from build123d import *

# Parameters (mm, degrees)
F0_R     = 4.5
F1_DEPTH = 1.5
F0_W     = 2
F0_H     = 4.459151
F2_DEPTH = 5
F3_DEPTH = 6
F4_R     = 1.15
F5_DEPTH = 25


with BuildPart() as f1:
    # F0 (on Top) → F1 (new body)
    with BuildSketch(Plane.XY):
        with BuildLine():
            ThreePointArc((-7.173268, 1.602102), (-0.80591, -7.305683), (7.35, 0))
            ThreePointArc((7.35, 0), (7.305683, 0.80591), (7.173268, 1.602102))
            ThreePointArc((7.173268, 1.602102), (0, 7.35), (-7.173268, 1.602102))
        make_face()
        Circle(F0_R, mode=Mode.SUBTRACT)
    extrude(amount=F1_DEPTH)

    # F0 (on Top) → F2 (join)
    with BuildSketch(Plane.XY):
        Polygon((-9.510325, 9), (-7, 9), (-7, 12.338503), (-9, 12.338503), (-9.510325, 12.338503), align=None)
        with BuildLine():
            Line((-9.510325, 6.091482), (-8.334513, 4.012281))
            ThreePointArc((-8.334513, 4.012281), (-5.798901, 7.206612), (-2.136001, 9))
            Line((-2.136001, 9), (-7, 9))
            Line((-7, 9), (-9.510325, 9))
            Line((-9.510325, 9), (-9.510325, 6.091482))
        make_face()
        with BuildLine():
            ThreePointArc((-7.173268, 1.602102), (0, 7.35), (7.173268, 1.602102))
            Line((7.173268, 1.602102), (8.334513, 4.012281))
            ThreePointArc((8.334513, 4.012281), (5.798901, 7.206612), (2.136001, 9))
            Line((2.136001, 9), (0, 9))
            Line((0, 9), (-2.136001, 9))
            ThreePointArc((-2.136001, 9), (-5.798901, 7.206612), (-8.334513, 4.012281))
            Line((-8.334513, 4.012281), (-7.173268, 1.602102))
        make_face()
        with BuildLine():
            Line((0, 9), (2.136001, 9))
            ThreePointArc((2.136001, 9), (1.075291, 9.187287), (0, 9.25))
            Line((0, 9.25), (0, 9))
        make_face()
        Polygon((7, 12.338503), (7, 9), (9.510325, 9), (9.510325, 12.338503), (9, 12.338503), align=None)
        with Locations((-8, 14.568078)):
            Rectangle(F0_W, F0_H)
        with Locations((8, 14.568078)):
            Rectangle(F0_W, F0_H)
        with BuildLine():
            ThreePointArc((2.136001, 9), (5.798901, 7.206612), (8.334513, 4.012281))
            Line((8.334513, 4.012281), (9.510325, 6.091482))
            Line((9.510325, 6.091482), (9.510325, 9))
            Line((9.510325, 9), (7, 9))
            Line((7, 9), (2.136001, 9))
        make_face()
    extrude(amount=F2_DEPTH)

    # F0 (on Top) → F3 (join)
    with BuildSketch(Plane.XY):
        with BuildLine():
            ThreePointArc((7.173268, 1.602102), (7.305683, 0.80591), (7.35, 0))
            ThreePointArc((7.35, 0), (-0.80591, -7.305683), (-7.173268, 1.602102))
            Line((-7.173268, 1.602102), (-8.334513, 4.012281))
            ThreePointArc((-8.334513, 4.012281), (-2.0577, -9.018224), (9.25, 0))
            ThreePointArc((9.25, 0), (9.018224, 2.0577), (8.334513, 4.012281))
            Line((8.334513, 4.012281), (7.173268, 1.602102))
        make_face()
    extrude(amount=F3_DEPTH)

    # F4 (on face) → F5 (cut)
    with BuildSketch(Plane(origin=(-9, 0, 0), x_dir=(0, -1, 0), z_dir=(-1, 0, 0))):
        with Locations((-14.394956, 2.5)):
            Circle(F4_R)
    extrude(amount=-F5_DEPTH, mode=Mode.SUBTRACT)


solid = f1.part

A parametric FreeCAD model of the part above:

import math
import FreeCAD as App
import Part
import Sketcher

doc = App.newDocument("Part")
body = doc.addObject("PartDesign::Body", "Body")

# Sketch on XY plane
sketch1 = doc.addObject("Sketcher::SketchObject", "Sketch")
body.addObject(sketch1)
sketch1.AttachmentSupport = (doc.XY_Plane, [""])
sketch1.MapMode = "FlatFace"
sketch1.addGeometry(Part.ArcOfCircle(Part.Circle(App.Vector(0, 0, 0), App.Vector(0, 0, 1), 7.35), math.radians(167.409995), math.radians(359.999996)), False)
sketch1.addGeometry(Part.ArcOfCircle(Part.Circle(App.Vector(-0.000082, -0.000008, 0), App.Vector(0, 0, 1), 7.350082), math.radians(0.000059), math.radians(12.589927)), False)
sketch1.addGeometry(Part.ArcOfCircle(Part.Circle(App.Vector(0, 0, 0), App.Vector(0, 0, 1), 7.35), math.radians(12.590011), math.radians(167.409989)), False)
sketch1.addGeometry(Part.Circle(App.Vector(0, 0, 0), App.Vector(0, 0, 1), 4.5), False)
sketch1.addConstraint(Sketcher.Constraint("Coincident", 0, 2, 1, 1))
sketch1.addConstraint(Sketcher.Constraint("Coincident", 1, 2, 2, 1))
sketch1.addConstraint(Sketcher.Constraint("Coincident", 2, 2, 0, 1))
sketch1.addConstraint(Sketcher.Constraint("Coincident", 0, 3, -1, 1))
sketch1.addConstraint(Sketcher.Constraint("Coincident", 2, 3, -1, 1))
sketch1.addConstraint(Sketcher.Constraint("Coincident", 3, 3, -1, 1))
sketch1.addConstraint(Sketcher.Constraint("PointOnObject", 0, 2, -1))
sketch1.addConstraint(Sketcher.Constraint("Diameter", 3, 9.0))
sketch1.addConstraint(Sketcher.Constraint("Radius", 0, 7.35))
sketch1.addConstraint(Sketcher.Constraint("Radius", 1, 7.350082))
sketch1.addConstraint(Sketcher.Constraint("DistanceY", -1, 1, 1, 2, 1.602102))
sketch1.addConstraint(Sketcher.Constraint("DistanceY", 0, 3, 2, 2, 1.602102))
pad1 = doc.addObject("PartDesign::Pad", "Pad")
body.addObject(pad1)
pad1.Profile = sketch1
pad1.Length = 1.5

# Sketch on XY plane
sketch2 = doc.addObject("Sketcher::SketchObject", "Sketch001")
body.addObject(sketch2)
sketch2.AttachmentSupport = (doc.XY_Plane, [""])
sketch2.MapMode = "FlatFace"
sketch2.addGeometry(Part.LineSegment(App.Vector(0, 9, 0), App.Vector(-7, 9, 0)), False)
sketch2.addGeometry(Part.LineSegment(App.Vector(-7, 9, 0), App.Vector(-7, 16.797653, 0)), False)
sketch2.addGeometry(Part.LineSegment(App.Vector(-7, 16.797653, 0), App.Vector(-9, 16.797653, 0)), False)
sketch2.addGeometry(Part.LineSegment(App.Vector(-9, 16.797653, 0), App.Vector(-9, 12.338503, 0)), False)
sketch2.addGeometry(Part.LineSegment(App.Vector(-9, 12.338503, 0), App.Vector(-9.510325, 12.338503, 0)), False)
sketch2.addGeometry(Part.LineSegment(App.Vector(-9.510325, 12.338503, 0), App.Vector(-9.510325, 6.091482, 0)), False)
sketch2.addGeometry(Part.LineSegment(App.Vector(-9.510325, 6.091482, 0), App.Vector(-8.334513, 4.012281, 0)), False)
sketch2.addGeometry(Part.LineSegment(App.Vector(-8.334513, 4.012281, 0), App.Vector(-7.173268, 1.602102, 0)), False)
sketch2.addGeometry(Part.ArcOfCircle(Part.Circle(App.Vector(0, 0, 0), App.Vector(0, 0, 1), 7.35), math.radians(12.590011), math.radians(167.409989)), False)
sketch2.addGeometry(Part.LineSegment(App.Vector(7.173268, 1.602102, 0), App.Vector(8.334513, 4.012281, 0)), False)
sketch2.addGeometry(Part.LineSegment(App.Vector(8.334513, 4.012281, 0), App.Vector(9.510325, 6.091482, 0)), False)
sketch2.addGeometry(Part.LineSegment(App.Vector(9.510325, 6.091482, 0), App.Vector(9.510325, 12.338503, 0)), False)
sketch2.addGeometry(Part.LineSegment(App.Vector(9.510325, 12.338503, 0), App.Vector(9, 12.338503, 0)), False)
sketch2.addGeometry(Part.LineSegment(App.Vector(9, 12.338503, 0), App.Vector(9, 16.797653, 0)), False)
sketch2.addGeometry(Part.LineSegment(App.Vector(9, 16.797653, 0), App.Vector(7, 16.797653, 0)), False)
sketch2.addGeometry(Part.LineSegment(App.Vector(7, 16.797653, 0), App.Vector(7, 9, 0)), False)
sketch2.addGeometry(Part.LineSegment(App.Vector(7, 9, 0), App.Vector(2.136001, 9, 0)), False)
sketch2.addGeometry(Part.ArcOfCircle(Part.Circle(App.Vector(-0.000006, -0.000055, 0), App.Vector(0, 0, 1), 9.250055), math.radians(76.648856), math.radians(89.99996)), False)
sketch2.addGeometry(Part.LineSegment(App.Vector(0, 9.25, 0), App.Vector(0, 9, 0)), False)
sketch2.addConstraint(Sketcher.Constraint("Coincident", 0, 2, 1, 1))
sketch2.addConstraint(Sketcher.Constraint("Coincident", 1, 2, 2, 1))
sketch2.addConstraint(Sketcher.Constraint("Coincident", 2, 2, 3, 1))
sketch2.addConstraint(Sketcher.Constraint("Coincident", 3, 2, 4, 1))
sketch2.addConstraint(Sketcher.Constraint("Coincident", 4, 2, 5, 1))
sketch2.addConstraint(Sketcher.Constraint("Coincident", 5, 2, 6, 1))
sketch2.addConstraint(Sketcher.Constraint("Coincident", 6, 2, 7, 1))
sketch2.addConstraint(Sketcher.Constraint("Coincident", 7, 2, 8, 2))
sketch2.addConstraint(Sketcher.Constraint("Coincident", 8, 1, 9, 1))
sketch2.addConstraint(Sketcher.Constraint("Coincident", 9, 2, 10, 1))
sketch2.addConstraint(Sketcher.Constraint("Coincident", 10, 2, 11, 1))
sketch2.addConstraint(Sketcher.Constraint("Coincident", 11, 2, 12, 1))
sketch2.addConstraint(Sketcher.Constraint("Coincident", 12, 2, 13, 1))
sketch2.addConstraint(Sketcher.Constraint("Coincident", 13, 2, 14, 1))
sketch2.addConstraint(Sketcher.Constraint("Coincident", 14, 2, 15, 1))
sketch2.addConstraint(Sketcher.Constraint("Coincident", 15, 2, 16, 1))
sketch2.addConstraint(Sketcher.Constraint("Coincident", 16, 2, 17, 1))
sketch2.addConstraint(Sketcher.Constraint("Coincident", 17, 2, 18, 1))
sketch2.addConstraint(Sketcher.Constraint("Coincident", 18, 2, 0, 1))
sketch2.addConstraint(Sketcher.Constraint("Horizontal", 0))
sketch2.addConstraint(Sketcher.Constraint("Vertical", 1))
sketch2.addConstraint(Sketcher.Constraint("Horizontal", 2))
sketch2.addConstraint(Sketcher.Constraint("Vertical", 3))
sketch2.addConstraint(Sketcher.Constraint("Horizontal", 4))
sketch2.addConstraint(Sketcher.Constraint("Vertical", 5))
sketch2.addConstraint(Sketcher.Constraint("Vertical", 11))
sketch2.addConstraint(Sketcher.Constraint("Horizontal", 12))
sketch2.addConstraint(Sketcher.Constraint("Vertical", 13))
sketch2.addConstraint(Sketcher.Constraint("Horizontal", 14))
sketch2.addConstraint(Sketcher.Constraint("Vertical", 15))
sketch2.addConstraint(Sketcher.Constraint("Horizontal", 16))
sketch2.addConstraint(Sketcher.Constraint("Vertical", 18))
sketch2.addConstraint(Sketcher.Constraint("Coincident", 8, 3, -1, 1))
sketch2.addConstraint(Sketcher.Constraint("Symmetric", 6, 2, 9, 2, -2))
sketch2.addConstraint(Sketcher.Constraint("Symmetric", 5, 2, 10, 2, -2))
sketch2.addConstraint(Sketcher.Constraint("Symmetric", 3, 2, 12, 2, -2))
sketch2.addConstraint(Sketcher.Constraint("Symmetric", 1, 2, 14, 2, -2))
sketch2.addConstraint(Sketcher.Constraint("PointOnObject", 17, 2, -2))
sketch2.addConstraint(Sketcher.Constraint("Horizontal", 7, 2, 8, 1))
sketch2.addConstraint(Sketcher.Constraint("Horizontal", 0, 2, 15, 2))
sketch2.addConstraint(Sketcher.Constraint("DistanceX", 0, 2, 0, 1, 7.0))
sketch2.addConstraint(Sketcher.Constraint("DistanceX", 2, 2, 2, 1, 2.0))
sketch2.addConstraint(Sketcher.Constraint("Radius", 8, 7.35))
sketch2.addConstraint(Sketcher.Constraint("DistanceY", -1, 1, 0, 2, 9.0))
sketch2.addConstraint(Sketcher.Constraint("DistanceY", 18, 2, 18, 1, 0.25))
sketch2.addConstraint(Sketcher.Constraint("DistanceX", 16, 2, 16, 1, 4.863999))
sketch2.addConstraint(Sketcher.Constraint("Radius", 17, 9.250055))
sketch2.addConstraint(Sketcher.Constraint("DistanceY", 3, 2, 3, 1, 4.45915))
sketch2.addConstraint(Sketcher.Constraint("DistanceY", 5, 2, 5, 1, 6.247021))
sketch2.addConstraint(Sketcher.Constraint("DistanceY", -1, 1, 7, 2, 1.602102))
sketch2.addConstraint(Sketcher.Constraint("DistanceY", 6, 2, 5, 2, 2.079201))
sketch2.addConstraint(Sketcher.Constraint("DistanceY", 8, 1, 11, 2, 10.736401))
sketch2.addConstraint(Sketcher.Constraint("Distance", 7, 2.675342))
sketch2.addConstraint(Sketcher.Constraint("DistanceX", 4, 2, 4, 1, 0.510325))
pad2 = doc.addObject("PartDesign::Pad", "Pad001")
body.addObject(pad2)
pad2.Profile = sketch2
pad2.Length = 5

# Sketch on XY plane
sketch3 = doc.addObject("Sketcher::SketchObject", "Sketch002")
body.addObject(sketch3)
sketch3.AttachmentSupport = (doc.XY_Plane, [""])
sketch3.MapMode = "FlatFace"
sketch3.addGeometry(Part.ArcOfCircle(Part.Circle(App.Vector(-0.000082, -0.000008, 0), App.Vector(0, 0, 1), 7.350082), math.radians(0.000059), math.radians(12.589927)), False)
sketch3.addGeometry(Part.ArcOfCircle(Part.Circle(App.Vector(0, 0, 0), App.Vector(0, 0, 1), 7.35), math.radians(167.409995), math.radians(359.999996)), False)
sketch3.addGeometry(Part.LineSegment(App.Vector(-7.173268, 1.602102, 0), App.Vector(-8.334513, 4.012281, 0)), False)
sketch3.addGeometry(Part.ArcOfCircle(Part.Circle(App.Vector(0, 0, 0), App.Vector(0, 0, 1), 9.25), math.radians(154.293579), math.radians(359.999997)), False)
sketch3.addGeometry(Part.ArcOfCircle(Part.Circle(App.Vector(-0.00002, -0.000004, 0), App.Vector(0, 0, 1), 9.25002), math.radians(0.000024), math.radians(25.70639)), False)
sketch3.addGeometry(Part.LineSegment(App.Vector(8.334513, 4.012281, 0), App.Vector(7.173268, 1.602102, 0)), False)
sketch3.addConstraint(Sketcher.Constraint("Coincident", 0, 1, 1, 2))
sketch3.addConstraint(Sketcher.Constraint("Coincident", 1, 1, 2, 1))
sketch3.addConstraint(Sketcher.Constraint("Coincident", 2, 2, 3, 1))
sketch3.addConstraint(Sketcher.Constraint("Coincident", 3, 2, 4, 1))
sketch3.addConstraint(Sketcher.Constraint("Coincident", 4, 2, 5, 1))
sketch3.addConstraint(Sketcher.Constraint("Coincident", 5, 2, 0, 2))
sketch3.addConstraint(Sketcher.Constraint("Coincident", 1, 3, -1, 1))
sketch3.addConstraint(Sketcher.Constraint("Coincident", 3, 3, -1, 1))
sketch3.addConstraint(Sketcher.Constraint("PointOnObject", 0, 1, -1))
sketch3.addConstraint(Sketcher.Constraint("PointOnObject", 3, 2, -1))
sketch3.addConstraint(Sketcher.Constraint("Radius", 1, 7.35))
sketch3.addConstraint(Sketcher.Constraint("Radius", 3, 9.25))
sketch3.addConstraint(Sketcher.Constraint("Radius", 0, 7.350082))
sketch3.addConstraint(Sketcher.Constraint("Radius", 4, 9.25002))
sketch3.addConstraint(Sketcher.Constraint("DistanceY", -1, 1, 1, 1, 1.602102))
sketch3.addConstraint(Sketcher.Constraint("DistanceY", -1, 1, 5, 2, 1.602102))
sketch3.addConstraint(Sketcher.Constraint("Distance", 2, 2.675342))
sketch3.addConstraint(Sketcher.Constraint("Distance", 5, 2.675342))
sketch3.addConstraint(Sketcher.Constraint("DistanceY", -1, 1, 4, 2, 4.012281))
sketch3.addConstraint(Sketcher.Constraint("DistanceX", -1, 1, 5, 2, 7.173268))
pad3 = doc.addObject("PartDesign::Pad", "Pad002")
body.addObject(pad3)
pad3.Profile = sketch3
pad3.Length = 6

# Sketch on YZ plane
sketch4 = doc.addObject("Sketcher::SketchObject", "Sketch003")
body.addObject(sketch4)
sketch4.AttachmentSupport = (doc.YZ_Plane, [""])
sketch4.MapMode = "FlatFace"
sketch4.AttachmentOffset = App.Placement(App.Vector(0, 0, -9), App.Rotation())
sketch4.addGeometry(Part.Circle(App.Vector(14.394956, 2.5, 0), App.Vector(0, 0, 1), 1.15), False)
sketch4.addConstraint(Sketcher.Constraint("Diameter", 0, 2.3))
sketch4.addConstraint(Sketcher.Constraint("DistanceY", -1, 1, 0, 3, 2.5))
sketch4.addConstraint(Sketcher.Constraint("DistanceX", -1, 1, 0, 3, 14.394956))
pocket1 = doc.addObject("PartDesign::Pocket", "Pocket")
body.addObject(pocket1)
pocket1.Profile = sketch4
pocket1.Length = 25
pocket1.Reversed = True

doc.recompute()
